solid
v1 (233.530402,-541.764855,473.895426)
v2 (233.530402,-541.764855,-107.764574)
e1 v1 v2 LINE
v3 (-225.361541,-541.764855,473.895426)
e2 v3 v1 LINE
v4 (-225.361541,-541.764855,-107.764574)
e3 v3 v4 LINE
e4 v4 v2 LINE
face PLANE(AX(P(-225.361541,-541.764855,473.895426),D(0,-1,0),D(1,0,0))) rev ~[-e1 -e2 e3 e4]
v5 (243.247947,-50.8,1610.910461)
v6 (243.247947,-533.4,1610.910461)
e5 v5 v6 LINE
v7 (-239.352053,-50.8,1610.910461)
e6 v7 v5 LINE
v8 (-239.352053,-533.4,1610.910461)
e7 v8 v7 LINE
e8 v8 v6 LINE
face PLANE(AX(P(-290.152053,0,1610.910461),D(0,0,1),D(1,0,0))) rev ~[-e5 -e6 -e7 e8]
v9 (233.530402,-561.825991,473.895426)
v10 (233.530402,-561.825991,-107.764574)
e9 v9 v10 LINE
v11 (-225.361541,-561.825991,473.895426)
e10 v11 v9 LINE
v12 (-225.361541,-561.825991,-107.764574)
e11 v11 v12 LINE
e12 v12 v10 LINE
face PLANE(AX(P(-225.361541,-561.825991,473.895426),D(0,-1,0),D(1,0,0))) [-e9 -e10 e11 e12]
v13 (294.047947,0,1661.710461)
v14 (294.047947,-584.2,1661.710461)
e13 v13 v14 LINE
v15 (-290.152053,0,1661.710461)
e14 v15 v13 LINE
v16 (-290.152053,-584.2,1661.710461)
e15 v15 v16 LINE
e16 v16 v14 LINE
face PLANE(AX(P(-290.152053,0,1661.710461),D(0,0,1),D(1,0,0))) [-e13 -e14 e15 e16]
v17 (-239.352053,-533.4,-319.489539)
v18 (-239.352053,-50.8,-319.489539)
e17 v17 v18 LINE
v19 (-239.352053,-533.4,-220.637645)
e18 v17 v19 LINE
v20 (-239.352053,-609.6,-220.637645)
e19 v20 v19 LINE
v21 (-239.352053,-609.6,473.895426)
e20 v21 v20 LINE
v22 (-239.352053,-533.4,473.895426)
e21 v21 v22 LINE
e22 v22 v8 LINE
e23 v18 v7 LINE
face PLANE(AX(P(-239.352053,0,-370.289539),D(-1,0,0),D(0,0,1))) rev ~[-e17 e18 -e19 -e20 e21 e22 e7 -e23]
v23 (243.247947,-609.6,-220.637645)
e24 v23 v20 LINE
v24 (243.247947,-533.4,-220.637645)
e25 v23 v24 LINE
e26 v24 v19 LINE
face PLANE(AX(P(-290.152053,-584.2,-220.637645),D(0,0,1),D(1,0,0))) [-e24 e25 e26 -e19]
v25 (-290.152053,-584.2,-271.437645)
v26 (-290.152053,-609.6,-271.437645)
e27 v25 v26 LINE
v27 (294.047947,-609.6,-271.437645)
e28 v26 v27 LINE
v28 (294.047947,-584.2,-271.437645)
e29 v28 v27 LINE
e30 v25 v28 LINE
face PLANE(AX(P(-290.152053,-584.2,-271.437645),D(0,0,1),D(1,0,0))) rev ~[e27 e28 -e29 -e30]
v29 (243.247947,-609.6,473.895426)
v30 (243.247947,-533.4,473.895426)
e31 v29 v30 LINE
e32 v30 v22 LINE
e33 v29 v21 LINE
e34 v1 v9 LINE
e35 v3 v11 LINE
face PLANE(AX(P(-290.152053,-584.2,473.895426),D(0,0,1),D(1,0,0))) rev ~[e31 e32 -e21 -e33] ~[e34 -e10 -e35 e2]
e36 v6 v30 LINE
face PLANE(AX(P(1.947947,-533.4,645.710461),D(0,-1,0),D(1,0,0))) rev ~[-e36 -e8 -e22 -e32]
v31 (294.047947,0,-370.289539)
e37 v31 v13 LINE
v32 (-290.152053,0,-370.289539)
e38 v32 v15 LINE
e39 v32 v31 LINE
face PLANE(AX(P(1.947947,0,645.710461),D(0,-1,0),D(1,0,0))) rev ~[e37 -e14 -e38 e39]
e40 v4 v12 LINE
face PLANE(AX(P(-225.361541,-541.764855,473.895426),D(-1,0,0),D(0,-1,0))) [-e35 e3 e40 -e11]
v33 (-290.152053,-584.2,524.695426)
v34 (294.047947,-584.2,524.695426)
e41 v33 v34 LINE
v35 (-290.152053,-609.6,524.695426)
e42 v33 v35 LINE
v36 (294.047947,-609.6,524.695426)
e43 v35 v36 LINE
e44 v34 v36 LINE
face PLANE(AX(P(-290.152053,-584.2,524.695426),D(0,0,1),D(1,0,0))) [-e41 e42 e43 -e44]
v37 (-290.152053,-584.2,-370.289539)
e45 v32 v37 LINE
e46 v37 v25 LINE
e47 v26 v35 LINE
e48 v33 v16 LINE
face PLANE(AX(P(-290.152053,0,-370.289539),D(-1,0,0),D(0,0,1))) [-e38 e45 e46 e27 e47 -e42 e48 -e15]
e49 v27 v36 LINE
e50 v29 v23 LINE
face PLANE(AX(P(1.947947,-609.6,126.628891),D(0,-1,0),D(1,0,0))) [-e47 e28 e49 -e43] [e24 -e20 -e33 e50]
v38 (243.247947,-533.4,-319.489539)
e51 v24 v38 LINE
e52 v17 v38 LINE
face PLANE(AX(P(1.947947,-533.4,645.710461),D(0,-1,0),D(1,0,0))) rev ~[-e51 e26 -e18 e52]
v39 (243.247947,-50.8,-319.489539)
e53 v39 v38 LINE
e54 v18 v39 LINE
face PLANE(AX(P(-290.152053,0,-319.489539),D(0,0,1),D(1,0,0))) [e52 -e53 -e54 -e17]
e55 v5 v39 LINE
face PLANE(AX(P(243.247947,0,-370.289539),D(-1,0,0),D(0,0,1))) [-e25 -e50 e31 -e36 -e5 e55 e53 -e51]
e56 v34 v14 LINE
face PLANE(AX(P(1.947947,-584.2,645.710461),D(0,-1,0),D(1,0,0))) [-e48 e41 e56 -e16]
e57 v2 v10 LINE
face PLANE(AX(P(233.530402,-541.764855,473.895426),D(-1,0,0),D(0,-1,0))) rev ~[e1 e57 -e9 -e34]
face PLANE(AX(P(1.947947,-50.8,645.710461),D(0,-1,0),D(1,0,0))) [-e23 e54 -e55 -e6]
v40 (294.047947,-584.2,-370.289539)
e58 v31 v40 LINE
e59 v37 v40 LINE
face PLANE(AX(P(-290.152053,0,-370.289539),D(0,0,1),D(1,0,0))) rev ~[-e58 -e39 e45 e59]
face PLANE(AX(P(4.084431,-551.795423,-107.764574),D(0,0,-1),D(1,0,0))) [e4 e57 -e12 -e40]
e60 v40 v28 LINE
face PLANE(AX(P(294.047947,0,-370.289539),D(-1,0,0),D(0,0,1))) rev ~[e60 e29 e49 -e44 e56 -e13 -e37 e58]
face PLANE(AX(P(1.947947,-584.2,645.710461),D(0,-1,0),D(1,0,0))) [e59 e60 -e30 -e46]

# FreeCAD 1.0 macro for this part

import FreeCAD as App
import Part
import Sketcher

V = App.Vector
Q = App.Units.Quantity


def faces_at(feature, points):
    """Names of the faces that lie closest to the given points."""
    faces = feature.Shape.Faces
    near = lambda p: min(range(len(faces)), key=lambda i: faces[i].distToShape(Part.Vertex(*p))[0])
    return sorted({f"Face{near(p) + 1}" for p in points})


def add_polygon(sketch, points):
    """Adds a closed chain of lines whose ends are joined by coincident constraints."""
    first, n = sketch.GeometryCount, len(points)
    for a, b in zip(points, points[1:] + points[:1]):
        sketch.addGeometry(Part.LineSegment(App.Vector(*a, 0), App.Vector(*b, 0)), False)
    for i in range(n):
        sketch.addConstraint(Sketcher.Constraint("Coincident", first + i, 2, first + (i + 1) % n, 1))

doc = App.newDocument("Part")
params = doc.addObject("Spreadsheet::Sheet", "Params")
for row, (alias, value) in enumerate([
    ("sketch1_width", "23 in"),
    ("sketch1_height", "80 in"),
    ("pad1_length", "23 in"),
    ("sketch2_width", "23 in"),
    ("pad2_length", "1 in"),
    ("thickness_wall", "2 in"),
    ("pad3_length", "22.9 in"),
], start=1):
    params.set(f"A{row}", alias)
    params.set(f"B{row}", "=" + value)
    params.setAlias(f"B{row}", alias)

body = doc.addObject("PartDesign::Body", "Body")

sketch1 = body.newObject("Sketcher::SketchObject", "Sketch")
sketch1.AttachmentSupport = (doc.getObject("XZ_Plane"), [""])
sketch1.MapMode = "FlatFace"
add_polygon(sketch1, [(-290, 1662), (-290, -370), (294, -370), (294, 1662)])
sketch1.addConstraint([
    Sketcher.Constraint("Vertical", 0),
    Sketcher.Constraint("Horizontal", 1),
    Sketcher.Constraint("Vertical", 2),
    Sketcher.Constraint("Horizontal", 3),
    Sketcher.Constraint("DistanceX", 1, 1, 1, 2, Q("23 in")),
    Sketcher.Constraint("DistanceY", 0, 2, 0, 1, Q("80 in")),
    Sketcher.Constraint("DistanceY", 0, 2, -1, 1, Q("370.289539 mm")),
    Sketcher.Constraint("DistanceX", 0, 2, -1, 1, Q("290.152053 mm")),
])
sketch1.setExpression("Constraints[8]", "Params.sketch1_width")
sketch1.setExpression("Constraints[9]", "Params.sketch1_height")
pad1 = body.newObject("PartDesign::Pad", "Pad")
pad1.Profile = sketch1
pad1.setExpression("Length", "Params.pad1_length")

sketch2 = body.newObject("Sketcher::SketchObject", "Sketch001")
sketch2.AttachmentSupport = (doc.getObject("XZ_Plane"), [""])
sketch2.MapMode = "FlatFace"
sketch2.AttachmentOffset = App.Placement(V(0, 0, 23 * 25.4), App.Rotation())
add_polygon(sketch2, [(-290, 525), (-290, -271), (294, -271), (294, 525)])
sketch2.addConstraint([
    Sketcher.Constraint("Vertical", 0),
    Sketcher.Constraint("Horizontal", 1),
    Sketcher.Constraint("Vertical", 2),
    Sketcher.Constraint("Horizontal", 3),
    Sketcher.Constraint("DistanceX", 1, 1, 1, 2, Q("23 in")),
    Sketcher.Constraint("DistanceY", 0, 2, 0, 1, Q("796.133071 mm")),
    Sketcher.Constraint("DistanceX", 0, 2, -1, 1, Q("290.152053 mm")),
    Sketcher.Constraint("DistanceY", 0, 2, -1, 1, Q("271.437645 mm")),
])
sketch2.setExpression("Constraints[8]", "Params.sketch2_width")
pad2 = body.newObject("PartDesign::Pad", "Pad001")
pad2.Profile = sketch2
pad2.setExpression("Length", "Params.pad2_length")
doc.recompute()

thickness = body.newObject("PartDesign::Thickness", "Thickness")
thickness.Base = (pad2, faces_at(pad2, [(1.948, -609.6, 126.629)]))
thickness.setExpression("Value", "Params.thickness_wall")
thickness.Reversed = True
thickness.Join = "Intersection"

sketch3 = body.newObject("Sketcher::SketchObject", "Sketch002")
sketch3.AttachmentSupport = (doc.getObject("XY_Plane"), [""])
sketch3.MapMode = "FlatFace"
sketch3.AttachmentOffset = App.Placement(V(0, 0, 473.895426), App.Rotation())
add_polygon(sketch3, [(-225, -562), (-225, -542), (234, -542), (234, -562)])
sketch3.addConstraint([
    Sketcher.Constraint("Vertical", 0),
    Sketcher.Constraint("Horizontal", 1),
    Sketcher.Constraint("Vertical", 2),
    Sketcher.Constraint("Horizontal", 3),
    Sketcher.Constraint("DistanceX", 1, 1, 1, 2, Q("458.891943 mm")),
    Sketcher.Constraint("DistanceY", 0, 1, 0, 2, Q("20.061135 mm")),
    Sketcher.Constraint("DistanceX", 0, 2, -1, 1, Q("225.361541 mm")),
    Sketcher.Constraint("DistanceY", 2, 2, -1, 1, Q("561.825991 mm")),
])
pad3 = body.newObject("PartDesign::Pad", "Pad002")
pad3.Profile = sketch3
pad3.setExpression("Length", "Params.pad3_length")
pad3.Reversed = True

doc.recompute()
